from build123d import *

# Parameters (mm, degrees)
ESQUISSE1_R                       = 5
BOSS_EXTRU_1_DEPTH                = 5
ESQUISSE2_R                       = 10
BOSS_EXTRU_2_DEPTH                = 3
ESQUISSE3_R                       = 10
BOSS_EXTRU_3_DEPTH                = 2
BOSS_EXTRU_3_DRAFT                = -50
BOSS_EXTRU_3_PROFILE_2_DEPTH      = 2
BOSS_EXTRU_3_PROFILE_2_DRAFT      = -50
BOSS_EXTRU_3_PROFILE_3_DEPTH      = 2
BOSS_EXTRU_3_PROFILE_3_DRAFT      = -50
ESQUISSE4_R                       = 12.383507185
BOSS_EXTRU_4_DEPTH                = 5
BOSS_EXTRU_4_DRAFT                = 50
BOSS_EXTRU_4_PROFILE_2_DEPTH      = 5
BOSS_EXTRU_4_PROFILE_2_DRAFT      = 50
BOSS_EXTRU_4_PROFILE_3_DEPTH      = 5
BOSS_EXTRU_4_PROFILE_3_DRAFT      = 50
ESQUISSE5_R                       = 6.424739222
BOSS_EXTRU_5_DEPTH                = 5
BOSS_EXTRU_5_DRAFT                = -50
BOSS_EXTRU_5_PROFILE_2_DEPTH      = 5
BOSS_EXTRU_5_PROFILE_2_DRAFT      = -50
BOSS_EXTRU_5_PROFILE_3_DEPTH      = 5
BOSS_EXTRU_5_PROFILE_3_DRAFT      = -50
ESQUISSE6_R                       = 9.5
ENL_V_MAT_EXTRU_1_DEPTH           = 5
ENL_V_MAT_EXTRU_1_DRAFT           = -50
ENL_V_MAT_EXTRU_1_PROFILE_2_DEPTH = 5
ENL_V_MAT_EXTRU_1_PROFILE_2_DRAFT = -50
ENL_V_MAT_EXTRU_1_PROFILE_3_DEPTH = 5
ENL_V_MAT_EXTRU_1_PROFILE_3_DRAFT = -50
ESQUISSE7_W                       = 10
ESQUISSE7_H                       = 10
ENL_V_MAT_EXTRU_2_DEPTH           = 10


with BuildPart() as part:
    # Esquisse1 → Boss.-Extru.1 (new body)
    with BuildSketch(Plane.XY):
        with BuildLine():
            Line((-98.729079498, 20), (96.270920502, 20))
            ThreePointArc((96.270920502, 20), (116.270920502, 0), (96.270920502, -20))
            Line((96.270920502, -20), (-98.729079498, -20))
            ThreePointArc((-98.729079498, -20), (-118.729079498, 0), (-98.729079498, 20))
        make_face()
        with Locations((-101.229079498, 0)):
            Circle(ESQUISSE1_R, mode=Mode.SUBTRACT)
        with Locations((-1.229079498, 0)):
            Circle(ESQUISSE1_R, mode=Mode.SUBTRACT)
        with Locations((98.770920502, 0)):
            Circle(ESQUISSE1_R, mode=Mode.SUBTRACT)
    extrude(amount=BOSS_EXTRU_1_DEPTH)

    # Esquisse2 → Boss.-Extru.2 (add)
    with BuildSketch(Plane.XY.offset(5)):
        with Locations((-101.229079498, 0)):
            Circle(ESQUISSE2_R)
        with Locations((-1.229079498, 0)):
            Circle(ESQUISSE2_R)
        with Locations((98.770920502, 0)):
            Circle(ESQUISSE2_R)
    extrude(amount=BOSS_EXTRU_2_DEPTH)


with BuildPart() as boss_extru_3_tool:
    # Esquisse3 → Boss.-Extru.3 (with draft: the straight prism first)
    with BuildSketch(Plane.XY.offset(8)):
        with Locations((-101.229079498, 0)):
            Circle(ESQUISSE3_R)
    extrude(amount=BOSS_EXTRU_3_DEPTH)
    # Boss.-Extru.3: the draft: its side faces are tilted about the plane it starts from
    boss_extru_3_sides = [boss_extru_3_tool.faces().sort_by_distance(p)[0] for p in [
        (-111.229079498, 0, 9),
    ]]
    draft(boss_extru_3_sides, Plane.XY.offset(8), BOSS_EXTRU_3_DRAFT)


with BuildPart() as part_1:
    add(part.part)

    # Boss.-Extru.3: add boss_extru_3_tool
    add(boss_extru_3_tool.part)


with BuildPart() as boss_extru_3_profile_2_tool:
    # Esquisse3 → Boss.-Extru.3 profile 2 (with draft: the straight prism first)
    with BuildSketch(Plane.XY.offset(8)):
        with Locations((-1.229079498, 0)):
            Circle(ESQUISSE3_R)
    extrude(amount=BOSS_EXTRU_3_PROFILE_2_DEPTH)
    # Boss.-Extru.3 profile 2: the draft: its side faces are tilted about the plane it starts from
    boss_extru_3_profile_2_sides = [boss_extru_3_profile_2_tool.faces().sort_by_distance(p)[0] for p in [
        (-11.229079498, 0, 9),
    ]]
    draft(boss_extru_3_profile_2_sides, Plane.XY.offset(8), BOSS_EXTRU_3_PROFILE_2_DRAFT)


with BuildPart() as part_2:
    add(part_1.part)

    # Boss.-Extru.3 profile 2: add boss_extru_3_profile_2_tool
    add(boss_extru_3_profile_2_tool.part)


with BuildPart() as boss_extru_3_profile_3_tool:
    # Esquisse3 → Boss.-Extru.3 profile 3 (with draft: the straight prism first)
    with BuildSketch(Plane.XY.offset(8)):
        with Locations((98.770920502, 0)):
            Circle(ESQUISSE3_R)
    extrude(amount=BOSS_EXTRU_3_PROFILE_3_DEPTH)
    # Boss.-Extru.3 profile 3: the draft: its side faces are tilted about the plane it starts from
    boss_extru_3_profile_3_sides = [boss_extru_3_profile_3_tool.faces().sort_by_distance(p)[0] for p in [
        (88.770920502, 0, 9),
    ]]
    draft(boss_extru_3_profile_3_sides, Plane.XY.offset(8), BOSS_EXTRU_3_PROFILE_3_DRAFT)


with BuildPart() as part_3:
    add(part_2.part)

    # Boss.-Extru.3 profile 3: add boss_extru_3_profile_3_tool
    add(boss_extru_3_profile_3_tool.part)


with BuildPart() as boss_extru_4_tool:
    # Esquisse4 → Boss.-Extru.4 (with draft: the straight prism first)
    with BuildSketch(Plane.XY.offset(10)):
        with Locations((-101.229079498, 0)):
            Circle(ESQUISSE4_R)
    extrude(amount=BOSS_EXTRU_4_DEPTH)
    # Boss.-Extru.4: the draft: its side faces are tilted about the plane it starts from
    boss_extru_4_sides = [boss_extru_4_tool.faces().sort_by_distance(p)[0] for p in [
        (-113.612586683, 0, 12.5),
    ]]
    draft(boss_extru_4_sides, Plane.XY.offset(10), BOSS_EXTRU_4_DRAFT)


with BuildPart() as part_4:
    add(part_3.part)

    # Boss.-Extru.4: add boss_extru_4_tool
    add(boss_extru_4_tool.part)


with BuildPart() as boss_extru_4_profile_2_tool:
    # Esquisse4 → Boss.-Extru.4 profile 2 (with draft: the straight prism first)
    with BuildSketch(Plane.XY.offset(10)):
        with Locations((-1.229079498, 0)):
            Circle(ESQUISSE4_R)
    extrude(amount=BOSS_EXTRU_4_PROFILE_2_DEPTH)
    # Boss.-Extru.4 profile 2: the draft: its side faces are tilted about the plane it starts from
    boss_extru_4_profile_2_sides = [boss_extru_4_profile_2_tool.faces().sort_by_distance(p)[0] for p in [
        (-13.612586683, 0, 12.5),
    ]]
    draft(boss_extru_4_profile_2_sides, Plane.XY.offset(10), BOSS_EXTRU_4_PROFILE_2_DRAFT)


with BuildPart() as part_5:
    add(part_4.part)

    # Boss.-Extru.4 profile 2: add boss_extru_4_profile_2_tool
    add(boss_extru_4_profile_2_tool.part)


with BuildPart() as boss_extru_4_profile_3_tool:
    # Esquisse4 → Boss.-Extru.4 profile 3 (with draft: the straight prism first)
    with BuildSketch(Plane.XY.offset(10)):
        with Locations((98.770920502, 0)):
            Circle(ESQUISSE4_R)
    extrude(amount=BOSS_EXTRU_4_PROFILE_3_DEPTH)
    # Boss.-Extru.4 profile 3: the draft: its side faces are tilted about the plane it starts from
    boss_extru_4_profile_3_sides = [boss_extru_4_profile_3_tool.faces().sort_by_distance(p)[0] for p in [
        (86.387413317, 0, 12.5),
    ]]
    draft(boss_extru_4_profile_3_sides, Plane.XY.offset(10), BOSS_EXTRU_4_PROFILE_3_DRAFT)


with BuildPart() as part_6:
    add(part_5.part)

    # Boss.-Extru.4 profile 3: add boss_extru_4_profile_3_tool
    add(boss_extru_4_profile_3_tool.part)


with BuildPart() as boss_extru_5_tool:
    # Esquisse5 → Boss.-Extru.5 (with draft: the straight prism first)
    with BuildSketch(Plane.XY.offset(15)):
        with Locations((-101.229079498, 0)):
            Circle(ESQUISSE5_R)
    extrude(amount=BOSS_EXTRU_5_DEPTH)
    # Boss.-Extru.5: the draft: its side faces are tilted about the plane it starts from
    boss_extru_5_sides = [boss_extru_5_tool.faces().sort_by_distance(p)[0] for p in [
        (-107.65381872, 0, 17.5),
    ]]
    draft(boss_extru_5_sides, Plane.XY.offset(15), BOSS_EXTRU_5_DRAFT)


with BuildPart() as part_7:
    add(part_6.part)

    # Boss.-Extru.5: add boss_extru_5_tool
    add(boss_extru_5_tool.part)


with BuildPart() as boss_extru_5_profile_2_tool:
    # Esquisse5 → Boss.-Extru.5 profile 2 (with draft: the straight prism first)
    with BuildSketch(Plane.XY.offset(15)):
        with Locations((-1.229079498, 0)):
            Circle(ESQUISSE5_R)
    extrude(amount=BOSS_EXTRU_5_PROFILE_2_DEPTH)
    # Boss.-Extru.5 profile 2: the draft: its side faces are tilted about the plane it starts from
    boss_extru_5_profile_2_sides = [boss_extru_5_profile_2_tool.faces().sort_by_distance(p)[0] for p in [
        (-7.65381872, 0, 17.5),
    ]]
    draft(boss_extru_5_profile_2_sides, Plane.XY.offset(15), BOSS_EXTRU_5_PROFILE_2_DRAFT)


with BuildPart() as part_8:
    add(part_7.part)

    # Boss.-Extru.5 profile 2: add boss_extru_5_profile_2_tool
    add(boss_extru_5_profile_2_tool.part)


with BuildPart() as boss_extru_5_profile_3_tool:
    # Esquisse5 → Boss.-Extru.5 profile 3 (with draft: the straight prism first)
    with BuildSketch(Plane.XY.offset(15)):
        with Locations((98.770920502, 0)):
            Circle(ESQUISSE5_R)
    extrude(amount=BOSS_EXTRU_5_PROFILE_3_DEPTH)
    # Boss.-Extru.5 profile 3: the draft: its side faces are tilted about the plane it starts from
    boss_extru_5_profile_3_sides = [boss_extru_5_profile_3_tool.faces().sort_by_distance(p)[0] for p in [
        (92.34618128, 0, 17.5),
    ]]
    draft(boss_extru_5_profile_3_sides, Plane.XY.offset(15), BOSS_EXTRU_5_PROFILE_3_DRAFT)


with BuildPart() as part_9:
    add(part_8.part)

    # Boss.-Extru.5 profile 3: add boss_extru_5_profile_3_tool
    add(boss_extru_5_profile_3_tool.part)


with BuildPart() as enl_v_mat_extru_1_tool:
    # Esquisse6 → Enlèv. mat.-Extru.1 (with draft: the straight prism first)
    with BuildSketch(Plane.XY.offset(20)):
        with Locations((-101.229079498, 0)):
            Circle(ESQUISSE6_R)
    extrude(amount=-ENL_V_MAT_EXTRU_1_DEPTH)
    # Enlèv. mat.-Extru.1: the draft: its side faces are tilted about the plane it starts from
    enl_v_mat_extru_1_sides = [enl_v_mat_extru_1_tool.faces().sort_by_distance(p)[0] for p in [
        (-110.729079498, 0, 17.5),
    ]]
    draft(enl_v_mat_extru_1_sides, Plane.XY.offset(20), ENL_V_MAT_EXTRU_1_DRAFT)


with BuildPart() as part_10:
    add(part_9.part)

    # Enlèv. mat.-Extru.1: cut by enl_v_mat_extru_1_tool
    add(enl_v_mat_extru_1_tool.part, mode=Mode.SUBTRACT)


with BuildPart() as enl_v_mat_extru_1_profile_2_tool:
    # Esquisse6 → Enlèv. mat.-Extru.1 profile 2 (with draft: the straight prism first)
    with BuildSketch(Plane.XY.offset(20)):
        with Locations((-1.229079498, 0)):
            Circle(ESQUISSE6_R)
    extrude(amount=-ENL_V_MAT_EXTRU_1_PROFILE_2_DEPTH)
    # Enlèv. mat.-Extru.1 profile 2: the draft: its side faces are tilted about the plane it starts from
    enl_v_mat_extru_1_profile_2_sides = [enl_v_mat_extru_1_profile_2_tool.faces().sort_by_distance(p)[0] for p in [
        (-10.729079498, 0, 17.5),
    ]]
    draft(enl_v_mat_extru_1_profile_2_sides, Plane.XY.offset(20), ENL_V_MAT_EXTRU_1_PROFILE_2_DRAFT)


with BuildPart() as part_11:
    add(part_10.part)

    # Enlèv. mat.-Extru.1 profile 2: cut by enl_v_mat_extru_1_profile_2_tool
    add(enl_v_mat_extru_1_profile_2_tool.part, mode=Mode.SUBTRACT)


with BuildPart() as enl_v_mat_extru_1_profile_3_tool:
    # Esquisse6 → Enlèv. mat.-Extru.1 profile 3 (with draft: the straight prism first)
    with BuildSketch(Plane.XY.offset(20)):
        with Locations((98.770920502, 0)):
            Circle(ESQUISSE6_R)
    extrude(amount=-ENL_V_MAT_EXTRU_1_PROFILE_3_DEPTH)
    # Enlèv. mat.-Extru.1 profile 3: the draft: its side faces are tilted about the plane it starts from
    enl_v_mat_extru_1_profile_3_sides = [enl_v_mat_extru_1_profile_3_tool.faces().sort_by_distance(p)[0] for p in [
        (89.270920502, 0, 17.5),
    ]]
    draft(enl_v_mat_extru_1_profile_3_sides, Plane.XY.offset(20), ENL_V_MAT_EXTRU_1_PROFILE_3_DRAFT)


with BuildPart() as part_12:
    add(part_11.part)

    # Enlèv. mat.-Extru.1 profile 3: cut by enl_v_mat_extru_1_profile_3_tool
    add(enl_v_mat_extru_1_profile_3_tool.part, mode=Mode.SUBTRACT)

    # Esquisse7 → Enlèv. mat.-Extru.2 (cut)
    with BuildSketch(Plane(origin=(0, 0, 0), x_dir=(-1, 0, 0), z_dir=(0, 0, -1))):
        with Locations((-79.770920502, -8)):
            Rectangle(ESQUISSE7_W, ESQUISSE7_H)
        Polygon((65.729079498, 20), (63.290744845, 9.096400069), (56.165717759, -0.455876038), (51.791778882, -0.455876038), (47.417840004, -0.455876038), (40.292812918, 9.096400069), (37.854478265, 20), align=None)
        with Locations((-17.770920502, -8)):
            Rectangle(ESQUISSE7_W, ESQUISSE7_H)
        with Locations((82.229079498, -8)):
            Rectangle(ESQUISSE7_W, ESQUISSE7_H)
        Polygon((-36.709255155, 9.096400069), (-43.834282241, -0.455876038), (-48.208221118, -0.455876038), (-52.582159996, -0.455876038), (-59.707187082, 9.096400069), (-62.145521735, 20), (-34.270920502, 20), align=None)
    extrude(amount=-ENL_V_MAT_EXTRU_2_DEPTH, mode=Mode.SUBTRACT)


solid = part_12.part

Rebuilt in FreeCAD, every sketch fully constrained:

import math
import FreeCAD as App
import Part
import Sketcher

V = App.Vector


def faces_at(feature, points):
    """Names of the faces that lie closest to the given points."""
    faces = feature.Shape.Faces
    near = lambda p: min(range(len(faces)), key=lambda i: faces[i].distToShape(Part.Vertex(*p))[0])
    return sorted({f"Face{near(p) + 1}" for p in points})

doc = App.newDocument("Part")
params = doc.addObject("Spreadsheet::Sheet", "Params")
for row, (alias, value) in enumerate([
    ("sketch1_diameter", "10 mm"),
    ("sketch1_radius", "20 mm"),
    ("sketch1_width", "195 mm"),
    ("pad1_length", "5 mm"),
    ("sketch2_diameter", "20 mm"),
    ("pad2_length", "3 mm"),
    ("sketch3_diameter", "20 mm"),
    ("pad3_length", "2 mm"),
    ("draft_angle", "50 deg"),
    ("sketch4_diameter", "20 mm"),
    ("pad4_length", "2 mm"),
    ("draft2_angle", "50 deg"),
    ("sketch5_diameter", "20 mm"),
    ("pad5_length", "2 mm"),
    ("draft3_angle", "50 deg"),
    ("pad6_length", "5 mm"),
    ("draft4_angle", "50 deg"),
    ("pad7_length", "5 mm"),
    ("draft5_angle", "50 deg"),
    ("pad8_length", "5 mm"),
    ("draft6_angle", "50 deg"),
    ("pad9_length", "5 mm"),
    ("draft7_angle", "50 deg"),
    ("pad10_length", "5 mm"),
    ("draft8_angle", "50 deg"),
    ("pad11_length", "5 mm"),
    ("draft9_angle", "50 deg"),
    ("sketch12_diameter", "19 mm"),
    ("pad12_length", "5 mm"),
    ("draft10_angle", "50 deg"),
    ("sketch13_diameter", "19 mm"),
    ("pad13_length", "5 mm"),
    ("draft11_angle", "50 deg"),
    ("sketch14_diameter", "19 mm"),
    ("pad14_length", "5 mm"),
    ("draft12_angle", "50 deg"),
    ("sketch15_width", "10 mm"),
    ("pocket1_length", "10 mm"),
], start=1):
    params.set(f"A{row}", alias)
    params.set(f"B{row}", "=" + value)
    params.setAlias(f"B{row}", alias)

body = doc.addObject("PartDesign::Body", "Body")

# Sketch on XY plane
sketch1 = body.newObject("Sketcher::SketchObject", "Sketch")
sketch1.AttachmentSupport = (doc.getObject("XY_Plane"), [""])
sketch1.MapMode = "FlatFace"
sketch1.addGeometry(Part.LineSegment(V(96, 20, 0), V(-99, 20, 0)), False)
sketch1.addGeometry(Part.ArcOfCircle(Part.Circle(V(-99, 0, 0), V(0, 0, 1), 20), math.radians(90), math.radians(270)), False)
sketch1.addGeometry(Part.LineSegment(V(-99, -20, 0), V(96, -20, 0)), False)
sketch1.addGeometry(Part.ArcOfCircle(Part.Circle(V(96, 0, 0), V(0, 0, 1), 20), math.radians(-90), math.radians(90)), False)
sketch1.addGeometry(Part.Circle(V(99, 0, 0), V(0, 0, 1), 5), False)
sketch1.addGeometry(Part.Circle(V(-1, 0, 0), V(0, 0, 1), 5), False)
sketch1.addGeometry(Part.Circle(V(-101, 0, 0), V(0, 0, 1), 5), False)
sketch1.addConstraint(Sketcher.Constraint("Tangent", 0, 2, 1, 1))
sketch1.addConstraint(Sketcher.Constraint("Tangent", 1, 2, 2, 1))
sketch1.addConstraint(Sketcher.Constraint("Tangent", 2, 2, 3, 1))
sketch1.addConstraint(Sketcher.Constraint("Tangent", 3, 2, 0, 1))
sketch1.addConstraint(Sketcher.Constraint("Horizontal", 0))
sketch1.addConstraint(Sketcher.Constraint("Horizontal", 2))
sketch1.addConstraint(Sketcher.Constraint("Equal", 4, 5))
sketch1.addConstraint(Sketcher.Constraint("Equal", 5, 6))
sketch1.addConstraint(Sketcher.Constraint("PointOnObject", 1, 3, -1))
sketch1.addConstraint(Sketcher.Constraint("PointOnObject", 4, 3, -1))
sketch1.addConstraint(Sketcher.Constraint("PointOnObject", 5, 3, -1))
sketch1.addConstraint(Sketcher.Constraint("PointOnObject", 6, 3, -1))
sketch1.addConstraint(Sketcher.Constraint("Diameter", 4, 10.0))
sketch1.addConstraint(Sketcher.Constraint("Radius", 1, 20.0))
sketch1.addConstraint(Sketcher.Constraint("DistanceX", 0, 2, 0, 1, 195.0))
sketch1.addConstraint(Sketcher.Constraint("DistanceX", 5, 3, 4, 3, 100.0))
sketch1.addConstraint(Sketcher.Constraint("DistanceX", 6, 3, 5, 3, 100.0))
sketch1.addConstraint(Sketcher.Constraint("DistanceX", 3, 3, 4, 3, 2.5))
sketch1.addConstraint(Sketcher.Constraint("DistanceX", 1, 3, -1, 1, 98.729079))
sketch1.setExpression("Constraints[12]", "Params.sketch1_diameter")
sketch1.setExpression("Constraints[13]", "Params.sketch1_radius")
sketch1.setExpression("Constraints[14]", "Params.sketch1_width")
pad1 = body.newObject("PartDesign::Pad", "Pad")
pad1.Profile = sketch1
pad1.setExpression("Length", "Params.pad1_length")

# Sketch on XY plane
sketch2 = body.newObject("Sketcher::SketchObject", "Sketch001")
sketch2.AttachmentSupport = (doc.getObject("XY_Plane"), [""])
sketch2.MapMode = "FlatFace"
sketch2.AttachmentOffset = App.Placement(V(0, 0, 5), App.Rotation())
sketch2.addGeometry(Part.Circle(V(-101, 0, 0), V(0, 0, 1), 10), False)
sketch2.addGeometry(Part.Circle(V(-1, 0, 0), V(0, 0, 1), 10), False)
sketch2.addGeometry(Part.Circle(V(99, 0, 0), V(0, 0, 1), 10), False)
sketch2.addConstraint(Sketcher.Constraint("Equal", 0, 1))
sketch2.addConstraint(Sketcher.Constraint("Equal", 1, 2))
sketch2.addConstraint(Sketcher.Constraint("PointOnObject", 0, 3, -1))
sketch2.addConstraint(Sketcher.Constraint("PointOnObject", 1, 3, -1))
sketch2.addConstraint(Sketcher.Constraint("PointOnObject", 2, 3, -1))
sketch2.addConstraint(Sketcher.Constraint("Diameter", 0, 20.0))
sketch2.addConstraint(Sketcher.Constraint("DistanceX", 0, 3, 1, 3, 100.0))
sketch2.addConstraint(Sketcher.Constraint("DistanceX", 1, 3, 2, 3, 100.0))
sketch2.addConstraint(Sketcher.Constraint("DistanceX", 0, 3, -1, 1, 101.229079))
sketch2.setExpression("Constraints[5]", "Params.sketch2_diameter")
pad2 = body.newObject("PartDesign::Pad", "Pad001")
pad2.Profile = sketch2
pad2.setExpression("Length", "Params.pad2_length")
body2 = doc.addObject("PartDesign::Body", "Body001")

# Sketch on XY plane
sketch3 = body2.newObject("Sketcher::SketchObject", "Sketch002")
sketch3.AttachmentSupport = (doc.getObject("XY_Plane001"), [""])
sketch3.MapMode = "FlatFace"
sketch3.AttachmentOffset = App.Placement(V(0, 0, 8), App.Rotation())
sketch3.addGeometry(Part.Circle(V(-101, 0, 0), V(0, 0, 1), 10), False)
sketch3.addConstraint(Sketcher.Constraint("PointOnObject", 0, 3, -1))
sketch3.addConstraint(Sketcher.Constraint("Diameter", 0, 20.0))
sketch3.addConstraint(Sketcher.Constraint("DistanceX", 0, 3, -1, 1, 101.229079))
sketch3.setExpression("Constraints[1]", "Params.sketch3_diameter")
pad3 = body2.newObject("PartDesign::Pad", "Pad002")
pad3.Profile = sketch3
pad3.setExpression("Length", "Params.pad3_length")
doc.recompute()

datumplane = body2.newObject("PartDesign::Plane", "DatumPlane")
datumplane.AttachmentSupport = (doc.getObject("XY_Plane001"), [""])
datumplane.MapMode = "FlatFace"
datumplane.AttachmentOffset = App.Placement(V(0, 0, 8), App.Rotation())
draft = body2.newObject("PartDesign::Draft", "Draft")
draft.Base = (pad3, faces_at(pad3, [(-111.229, 0, 9)]))
draft.NeutralPlane = (datumplane, [""])
draft.setExpression("Angle", "Params.draft_angle")
draft.Reversed = True
doc.recompute()

boolean = body.newObject("PartDesign::Boolean", "Boolean")
boolean.Type = "Fuse"
boolean.addObjects([body2])
body3 = doc.addObject("PartDesign::Body", "Body002")

# Sketch on XY plane
sketch4 = body3.newObject("Sketcher::SketchObject", "Sketch003")
sketch4.AttachmentSupport = (doc.getObject("XY_Plane002"), [""])
sketch4.MapMode = "FlatFace"
sketch4.AttachmentOffset = App.Placement(V(0, 0, 8), App.Rotation())
sketch4.addGeometry(Part.Circle(V(-1, 0, 0), V(0, 0, 1), 10), False)
sketch4.addConstraint(Sketcher.Constraint("PointOnObject", 0, 3, -1))
sketch4.addConstraint(Sketcher.Constraint("Diameter", 0, 20.0))
sketch4.addConstraint(Sketcher.Constraint("DistanceX", 0, 3, -1, 1, 1.229079))
sketch4.setExpression("Constraints[1]", "Params.sketch4_diameter")
pad4 = body3.newObject("PartDesign::Pad", "Pad003")
pad4.Profile = sketch4
pad4.setExpression("Length", "Params.pad4_length")
doc.recompute()

datumplane2 = body3.newObject("PartDesign::Plane", "DatumPlane001")
datumplane2.AttachmentSupport = (doc.getObject("XY_Plane002"), [""])
datumplane2.MapMode = "FlatFace"
datumplane2.AttachmentOffset = App.Placement(V(0, 0, 8), App.Rotation())
draft2 = body3.newObject("PartDesign::Draft", "Draft001")
draft2.Base = (pad4, faces_at(pad4, [(-11.229, 0, 9)]))
draft2.NeutralPlane = (datumplane2, [""])
draft2.setExpression("Angle", "Params.draft2_angle")
draft2.Reversed = True
doc.recompute()

boolean2 = body.newObject("PartDesign::Boolean", "Boolean001")
boolean2.Type = "Fuse"
boolean2.addObjects([body3])
body4 = doc.addObject("PartDesign::Body", "Body003")

# Sketch on XY plane
sketch5 = body4.newObject("Sketcher::SketchObject", "Sketch004")
sketch5.AttachmentSupport = (doc.getObject("XY_Plane003"), [""])
sketch5.MapMode = "FlatFace"
sketch5.AttachmentOffset = App.Placement(V(0, 0, 8), App.Rotation())
sketch5.addGeometry(Part.Circle(V(99, 0, 0), V(0, 0, 1), 10), False)
sketch5.addConstraint(Sketcher.Constraint("PointOnObject", 0, 3, -1))
sketch5.addConstraint(Sketcher.Constraint("Diameter", 0, 20.0))
sketch5.addConstraint(Sketcher.Constraint("DistanceX", -1, 1, 0, 3, 98.770921))
sketch5.setExpression("Constraints[1]", "Params.sketch5_diameter")
pad5 = body4.newObject("PartDesign::Pad", "Pad004")
pad5.Profile = sketch5
pad5.setExpression("Length", "Params.pad5_length")
doc.recompute()

datumplane3 = body4.newObject("PartDesign::Plane", "DatumPlane002")
datumplane3.AttachmentSupport = (doc.getObject("XY_Plane003"), [""])
datumplane3.MapMode = "FlatFace"
datumplane3.AttachmentOffset = App.Placement(V(0, 0, 8), App.Rotation())
draft3 = body4.newObject("PartDesign::Draft", "Draft002")
draft3.Base = (pad5, faces_at(pad5, [(88.771, 0, 9)]))
draft3.NeutralPlane = (datumplane3, [""])
draft3.setExpression("Angle", "Params.draft3_angle")
draft3.Reversed = True
doc.recompute()

boolean3 = body.newObject("PartDesign::Boolean", "Boolean002")
boolean3.Type = "Fuse"
boolean3.addObjects([body4])
body5 = doc.addObject("PartDesign::Body", "Body004")

# Sketch on XY plane
sketch6 = body5.newObject("Sketcher::SketchObject", "Sketch005")
sketch6.AttachmentSupport = (doc.getObject("XY_Plane004"), [""])
sketch6.MapMode = "FlatFace"
sketch6.AttachmentOffset = App.Placement(V(0, 0, 10), App.Rotation())
sketch6.addGeometry(Part.Circle(V(-101, 0, 0), V(0, 0, 1), 12), False)
sketch6.addConstraint(Sketcher.Constraint("PointOnObject", 0, 3, -1))
sketch6.addConstraint(Sketcher.Constraint("Diameter", 0, 24.767014))
sketch6.addConstraint(Sketcher.Constraint("DistanceX", 0, 3, -1, 1, 101.229079))
pad6 = body5.newObject("PartDesign::Pad", "Pad005")
pad6.Profile = sketch6
pad6.setExpression("Length", "Params.pad6_length")
doc.recompute()

datumplane4 = body5.newObject("PartDesign::Plane", "DatumPlane003")
datumplane4.AttachmentSupport = (doc.getObject("XY_Plane004"), [""])
datumplane4.MapMode = "FlatFace"
datumplane4.AttachmentOffset = App.Placement(V(0, 0, 10), App.Rotation())
draft4 = body5.newObject("PartDesign::Draft", "Draft003")
draft4.Base = (pad6, faces_at(pad6, [(-113.613, 0, 12.5)]))
draft4.NeutralPlane = (datumplane4, [""])
draft4.setExpression("Angle", "Params.draft4_angle")
draft4.Reversed = False
doc.recompute()

boolean4 = body.newObject("PartDesign::Boolean", "Boolean003")
boolean4.Type = "Fuse"
boolean4.addObjects([body5])
body6 = doc.addObject("PartDesign::Body", "Body005")

# Sketch on XY plane
sketch7 = body6.newObject("Sketcher::SketchObject", "Sketch006")
sketch7.AttachmentSupport = (doc.getObject("XY_Plane005"), [""])
sketch7.MapMode = "FlatFace"
sketch7.AttachmentOffset = App.Placement(V(0, 0, 10), App.Rotation())
sketch7.addGeometry(Part.Circle(V(-1, 0, 0), V(0, 0, 1), 12), False)
sketch7.addConstraint(Sketcher.Constraint("PointOnObject", 0, 3, -1))
sketch7.addConstraint(Sketcher.Constraint("Diameter", 0, 24.767014))
sketch7.addConstraint(Sketcher.Constraint("DistanceX", 0, 3, -1, 1, 1.229079))
pad7 = body6.newObject("PartDesign::Pad", "Pad006")
pad7.Profile = sketch7
pad7.setExpression("Length", "Params.pad7_length")
doc.recompute()

datumplane5 = body6.newObject("PartDesign::Plane", "DatumPlane004")
datumplane5.AttachmentSupport = (doc.getObject("XY_Plane005"), [""])
datumplane5.MapMode = "FlatFace"
datumplane5.AttachmentOffset = App.Placement(V(0, 0, 10), App.Rotation())
draft5 = body6.newObject("PartDesign::Draft", "Draft004")
draft5.Base = (pad7, faces_at(pad7, [(-13.613, 0, 12.5)]))
draft5.NeutralPlane = (datumplane5, [""])
draft5.setExpression("Angle", "Params.draft5_angle")
draft5.Reversed = False
doc.recompute()

boolean5 = body.newObject("PartDesign::Boolean", "Boolean004")
boolean5.Type = "Fuse"
boolean5.addObjects([body6])
body7 = doc.addObject("PartDesign::Body", "Body006")

# Sketch on XY plane
sketch8 = body7.newObject("Sketcher::SketchObject", "Sketch007")
sketch8.AttachmentSupport = (doc.getObject("XY_Plane006"), [""])
sketch8.MapMode = "FlatFace"
sketch8.AttachmentOffset = App.Placement(V(0, 0, 10), App.Rotation())
sketch8.addGeometry(Part.Circle(V(99, 0, 0), V(0, 0, 1), 12), False)
sketch8.addConstraint(Sketcher.Constraint("PointOnObject", 0, 3, -1))
sketch8.addConstraint(Sketcher.Constraint("Diameter", 0, 24.767014))
sketch8.addConstraint(Sketcher.Constraint("DistanceX", -1, 1, 0, 3, 98.770921))
pad8 = body7.newObject("PartDesign::Pad", "Pad007")
pad8.Profile = sketch8
pad8.setExpression("Length", "Params.pad8_length")
doc.recompute()

datumplane6 = body7.newObject("PartDesign::Plane", "DatumPlane005")
datumplane6.AttachmentSupport = (doc.getObject("XY_Plane006"), [""])
datumplane6.MapMode = "FlatFace"
datumplane6.AttachmentOffset = App.Placement(V(0, 0, 10), App.Rotation())
draft6 = body7.newObject("PartDesign::Draft", "Draft005")
draft6.Base = (pad8, faces_at(pad8, [(86.387, 0, 12.5)]))
draft6.NeutralPlane = (datumplane6, [""])
draft6.setExpression("Angle", "Params.draft6_angle")
draft6.Reversed = False
doc.recompute()

boolean6 = body.newObject("PartDesign::Boolean", "Boolean005")
boolean6.Type = "Fuse"
boolean6.addObjects([body7])
body8 = doc.addObject("PartDesign::Body", "Body007")

# Sketch on XY plane
sketch9 = body8.newObject("Sketcher::SketchObject", "Sketch008")
sketch9.AttachmentSupport = (doc.getObject("XY_Plane007"), [""])
sketch9.MapMode = "FlatFace"
sketch9.AttachmentOffset = App.Placement(V(0, 0, 15), App.Rotation())
sketch9.addGeometry(Part.Circle(V(-101, 0, 0), V(0, 0, 1), 6), False)
sketch9.addConstraint(Sketcher.Constraint("PointOnObject", 0, 3, -1))
sketch9.addConstraint(Sketcher.Constraint("Diameter", 0, 12.849478))
sketch9.addConstraint(Sketcher.Constraint("DistanceX", 0, 3, -1, 1, 101.229079))
pad9 = body8.newObject("PartDesign::Pad", "Pad008")
pad9.Profile = sketch9
pad9.setExpression("Length", "Params.pad9_length")
doc.recompute()

datumplane7 = body8.newObject("PartDesign::Plane", "DatumPlane006")
datumplane7.AttachmentSupport = (doc.getObject("XY_Plane007"), [""])
datumplane7.MapMode = "FlatFace"
datumplane7.AttachmentOffset = App.Placement(V(0, 0, 15), App.Rotation())
draft7 = body8.newObject("PartDesign::Draft", "Draft006")
draft7.Base = (pad9, faces_at(pad9, [(-107.654, 0, 17.5)]))
draft7.NeutralPlane = (datumplane7, [""])
draft7.setExpression("Angle", "Params.draft7_angle")
draft7.Reversed = True
doc.recompute()

boolean7 = body.newObject("PartDesign::Boolean", "Boolean006")
boolean7.Type = "Fuse"
boolean7.addObjects([body8])
body9 = doc.addObject("PartDesign::Body", "Body008")

# Sketch on XY plane
sketch10 = body9.newObject("Sketcher::SketchObject", "Sketch009")
sketch10.AttachmentSupport = (doc.getObject("XY_Plane008"), [""])
sketch10.MapMode = "FlatFace"
sketch10.AttachmentOffset = App.Placement(V(0, 0, 15), App.Rotation())
sketch10.addGeometry(Part.Circle(V(-1, 0, 0), V(0, 0, 1), 6), False)
sketch10.addConstraint(Sketcher.Constraint("PointOnObject", 0, 3, -1))
sketch10.addConstraint(Sketcher.Constraint("Diameter", 0, 12.849478))
sketch10.addConstraint(Sketcher.Constraint("DistanceX", 0, 3, -1, 1, 1.229079))
pad10 = body9.newObject("PartDesign::Pad", "Pad009")
pad10.Profile = sketch10
pad10.setExpression("Length", "Params.pad10_length")
doc.recompute()

datumplane8 = body9.newObject("PartDesign::Plane", "DatumPlane007")
datumplane8.AttachmentSupport = (doc.getObject("XY_Plane008"), [""])
datumplane8.MapMode = "FlatFace"
datumplane8.AttachmentOffset = App.Placement(V(0, 0, 15), App.Rotation())
draft8 = body9.newObject("PartDesign::Draft", "Draft007")
draft8.Base = (pad10, faces_at(pad10, [(-7.654, 0, 17.5)]))
draft8.NeutralPlane = (datumplane8, [""])
draft8.setExpression("Angle", "Params.draft8_angle")
draft8.Reversed = True
doc.recompute()

boolean8 = body.newObject("PartDesign::Boolean", "Boolean007")
boolean8.Type = "Fuse"
boolean8.addObjects([body9])
body10 = doc.addObject("PartDesign::Body", "Body009")

# Sketch on XY plane
sketch11 = body10.newObject("Sketcher::SketchObject", "Sketch010")
sketch11.AttachmentSupport = (doc.getObject("XY_Plane009"), [""])
sketch11.MapMode = "FlatFace"
sketch11.AttachmentOffset = App.Placement(V(0, 0, 15), App.Rotation())
sketch11.addGeometry(Part.Circle(V(99, 0, 0), V(0, 0, 1), 6), False)
sketch11.addConstraint(Sketcher.Constraint("PointOnObject", 0, 3, -1))
sketch11.addConstraint(Sketcher.Constraint("Diameter", 0, 12.849478))
sketch11.addConstraint(Sketcher.Constraint("DistanceX", -1, 1, 0, 3, 98.770921))
pad11 = body10.newObject("PartDesign::Pad", "Pad010")
pad11.Profile = sketch11
pad11.setExpression("Length", "Params.pad11_length")
doc.recompute()

datumplane9 = body10.newObject("PartDesign::Plane", "DatumPlane008")
datumplane9.AttachmentSupport = (doc.getObject("XY_Plane009"), [""])
datumplane9.MapMode = "FlatFace"
datumplane9.AttachmentOffset = App.Placement(V(0, 0, 15), App.Rotation())
draft9 = body10.newObject("PartDesign::Draft", "Draft008")
draft9.Base = (pad11, faces_at(pad11, [(92.346, 0, 17.5)]))
draft9.NeutralPlane = (datumplane9, [""])
draft9.setExpression("Angle", "Params.draft9_angle")
draft9.Reversed = True
doc.recompute()

boolean9 = body.newObject("PartDesign::Boolean", "Boolean008")
boolean9.Type = "Fuse"
boolean9.addObjects([body10])
body11 = doc.addObject("PartDesign::Body", "Body010")

# Sketch on XY plane
sketch12 = body11.newObject("Sketcher::SketchObject", "Sketch011")
sketch12.AttachmentSupport = (doc.getObject("XY_Plane010"), [""])
sketch12.MapMode = "FlatFace"
sketch12.AttachmentOffset = App.Placement(V(0, 0, 20), App.Rotation())
sketch12.addGeometry(Part.Circle(V(-101, 0, 0), V(0, 0, 1), 10), False)
sketch12.addConstraint(Sketcher.Constraint("PointOnObject", 0, 3, -1))
sketch12.addConstraint(Sketcher.Constraint("Diameter", 0, 19.0))
sketch12.addConstraint(Sketcher.Constraint("DistanceX", 0, 3, -1, 1, 101.229079))
sketch12.setExpression("Constraints[1]", "Params.sketch12_diameter")
pad12 = body11.newObject("PartDesign::Pad", "Pad011")
pad12.Profile = sketch12
pad12.setExpression("Length", "Params.pad12_length")
pad12.Reversed = True
doc.recompute()

datumplane10 = body11.newObject("PartDesign::Plane", "DatumPlane009")
datumplane10.AttachmentSupport = (doc.getObject("XY_Plane010"), [""])
datumplane10.MapMode = "FlatFace"
datumplane10.AttachmentOffset = App.Placement(V(0, 0, 20), App.Rotation())
draft10 = body11.newObject("PartDesign::Draft", "Draft009")
draft10.Base = (pad12, faces_at(pad12, [(-110.729, 0, 17.5)]))
draft10.NeutralPlane = (datumplane10, [""])
draft10.setExpression("Angle", "Params.draft10_angle")
draft10.Reversed = True
doc.recompute()

boolean10 = body.newObject("PartDesign::Boolean", "Boolean009")
boolean10.Type = "Cut"
boolean10.addObjects([body11])
body12 = doc.addObject("PartDesign::Body", "Body011")

# Sketch on XY plane
sketch13 = body12.newObject("Sketcher::SketchObject", "Sketch012")
sketch13.AttachmentSupport = (doc.getObject("XY_Plane011"), [""])
sketch13.MapMode = "FlatFace"
sketch13.AttachmentOffset = App.Placement(V(0, 0, 20), App.Rotation())
sketch13.addGeometry(Part.Circle(V(-1, 0, 0), V(0, 0, 1), 10), False)
sketch13.addConstraint(Sketcher.Constraint("PointOnObject", 0, 3, -1))
sketch13.addConstraint(Sketcher.Constraint("Diameter", 0, 19.0))
sketch13.addConstraint(Sketcher.Constraint("DistanceX", 0, 3, -1, 1, 1.229079))
sketch13.setExpression("Constraints[1]", "Params.sketch13_diameter")
pad13 = body12.newObject("PartDesign::Pad", "Pad012")
pad13.Profile = sketch13
pad13.setExpression("Length", "Params.pad13_length")
pad13.Reversed = True
doc.recompute()

datumplane11 = body12.newObject("PartDesign::Plane", "DatumPlane010")
datumplane11.AttachmentSupport = (doc.getObject("XY_Plane011"), [""])
datumplane11.MapMode = "FlatFace"
datumplane11.AttachmentOffset = App.Placement(V(0, 0, 20), App.Rotation())
draft11 = body12.newObject("PartDesign::Draft", "Draft010")
draft11.Base = (pad13, faces_at(pad13, [(-10.729, 0, 17.5)]))
draft11.NeutralPlane = (datumplane11, [""])
draft11.setExpression("Angle", "Params.draft11_angle")
draft11.Reversed = True
doc.recompute()

boolean11 = body.newObject("PartDesign::Boolean", "Boolean010")
boolean11.Type = "Cut"
boolean11.addObjects([body12])
body13 = doc.addObject("PartDesign::Body", "Body012")

# Sketch on XY plane
sketch14 = body13.newObject("Sketcher::SketchObject", "Sketch013")
sketch14.AttachmentSupport = (doc.getObject("XY_Plane012"), [""])
sketch14.MapMode = "FlatFace"
sketch14.AttachmentOffset = App.Placement(V(0, 0, 20), App.Rotation())
sketch14.addGeometry(Part.Circle(V(99, 0, 0), V(0, 0, 1), 10), False)
sketch14.addConstraint(Sketcher.Constraint("PointOnObject", 0, 3, -1))
sketch14.addConstraint(Sketcher.Constraint("Diameter", 0, 19.0))
sketch14.addConstraint(Sketcher.Constraint("DistanceX", -1, 1, 0, 3, 98.770921))
sketch14.setExpression("Constraints[1]", "Params.sketch14_diameter")
pad14 = body13.newObject("PartDesign::Pad", "Pad013")
pad14.Profile = sketch14
pad14.setExpression("Length", "Params.pad14_length")
pad14.Reversed = True
doc.recompute()

datumplane12 = body13.newObject("PartDesign::Plane", "DatumPlane011")
datumplane12.AttachmentSupport = (doc.getObject("XY_Plane012"), [""])
datumplane12.MapMode = "FlatFace"
datumplane12.AttachmentOffset = App.Placement(V(0, 0, 20), App.Rotation())
draft12 = body13.newObject("PartDesign::Draft", "Draft011")
draft12.Base = (pad14, faces_at(pad14, [(89.271, 0, 17.5)]))
draft12.NeutralPlane = (datumplane12, [""])
draft12.setExpression("Angle", "Params.draft12_angle")
draft12.Reversed = True
doc.recompute()

boolean12 = body.newObject("PartDesign::Boolean", "Boolean011")
boolean12.Type = "Cut"
boolean12.addObjects([body13])

# Sketch on XY plane
sketch15 = body.newObject("Sketcher::SketchObject", "Sketch014")
sketch15.AttachmentSupport = (doc.getObject("XY_Plane"), [""])
sketch15.MapMode = "FlatFace"
sketch15.addGeometry(Part.LineSegment(V(85, -3, 0), V(85, -13, 0)), False)
sketch15.addGeometry(Part.LineSegment(V(85, -13, 0), V(75, -13, 0)), False)
sketch15.addGeometry(Part.LineSegment(V(75, -13, 0), V(75, -3, 0)), False)
sketch15.addGeometry(Part.LineSegment(V(75, -3, 0), V(85, -3, 0)), False)
sketch15.addGeometry(Part.LineSegment(V(-63, 9, 0), V(-66, 20, 0)), False)
sketch15.addGeometry(Part.LineSegment(V(-66, 20, 0), V(-38, 20, 0)), False)
sketch15.addGeometry(Part.LineSegment(V(-38, 20, 0), V(-40, 9, 0)), False)
sketch15.addGeometry(Part.LineSegment(V(-40, 9, 0), V(-47, 0, 0)), False)
sketch15.addGeometry(Part.LineSegment(V(-47, 0, 0), V(-56, 0, 0)), False)
sketch15.addGeometry(Part.LineSegment(V(-56, 0, 0), V(-63, 9, 0)), False)
sketch15.addGeometry(Part.LineSegment(V(23, -3, 0), V(23, -13, 0)), False)
sketch15.addGeometry(Part.LineSegment(V(23, -13, 0), V(13, -13, 0)), False)
sketch15.addGeometry(Part.LineSegment(V(13, -13, 0), V(13, -3, 0)), False)
sketch15.addGeometry(Part.LineSegment(V(13, -3, 0), V(23, -3, 0)), False)
sketch15.addGeometry(Part.LineSegment(V(-77, -3, 0), V(-77, -13, 0)), False)
sketch15.addGeometry(Part.LineSegment(V(-77, -13, 0), V(-87, -13, 0)), False)
sketch15.addGeometry(Part.LineSegment(V(-87, -13, 0), V(-87, -3, 0)), False)
sketch15.addGeometry(Part.LineSegment(V(-87, -3, 0), V(-77, -3, 0)), False)
sketch15.addGeometry(Part.LineSegment(V(44, 0, 0), V(37, 9, 0)), False)
sketch15.addGeometry(Part.LineSegment(V(37, 9, 0), V(34, 20, 0)), False)
sketch15.addGeometry(Part.LineSegment(V(34, 20, 0), V(62, 20, 0)), False)
sketch15.addGeometry(Part.LineSegment(V(62, 20, 0), V(60, 9, 0)), False)
sketch15.addGeometry(Part.LineSegment(V(60, 9, 0), V(53, 0, 0)), False)
sketch15.addGeometry(Part.LineSegment(V(53, 0, 0), V(44, 0, 0)), False)
sketch15.addConstraint(Sketcher.Constraint("Coincident", 0, 2, 1, 1))
sketch15.addConstraint(Sketcher.Constraint("Coincident", 1, 2, 2, 1))
sketch15.addConstraint(Sketcher.Constraint("Coincident", 2, 2, 3, 1))
sketch15.addConstraint(Sketcher.Constraint("Coincident", 3, 2, 0, 1))
sketch15.addConstraint(Sketcher.Constraint("Coincident", 4, 2, 5, 1))
sketch15.addConstraint(Sketcher.Constraint("Coincident", 5, 2, 6, 1))
sketch15.addConstraint(Sketcher.Constraint("Coincident", 6, 2, 7, 1))
sketch15.addConstraint(Sketcher.Constraint("Coincident", 7, 2, 8, 1))
sketch15.addConstraint(Sketcher.Constraint("Coincident", 8, 2, 9, 1))
sketch15.addConstraint(Sketcher.Constraint("Coincident", 9, 2, 4, 1))
sketch15.addConstraint(Sketcher.Constraint("Coincident", 10, 2, 11, 1))
sketch15.addConstraint(Sketcher.Constraint("Coincident", 11, 2, 12, 1))
sketch15.addConstraint(Sketcher.Constraint("Coincident", 12, 2, 13, 1))
sketch15.addConstraint(Sketcher.Constraint("Coincident", 13, 2, 10, 1))
sketch15.addConstraint(Sketcher.Constraint("Coincident", 14, 2, 15, 1))
sketch15.addConstraint(Sketcher.Constraint("Coincident", 15, 2, 16, 1))
sketch15.addConstraint(Sketcher.Constraint("Coincident", 16, 2, 17, 1))
sketch15.addConstraint(Sketcher.Constraint("Coincident", 17, 2, 14, 1))
sketch15.addConstraint(Sketcher.Constraint("Coincident", 18, 2, 19, 1))
sketch15.addConstraint(Sketcher.Constraint("Coincident", 19, 2, 20, 1))
sketch15.addConstraint(Sketcher.Constraint("Coincident", 20, 2, 21, 1))
sketch15.addConstraint(Sketcher.Constraint("Coincident", 21, 2, 22, 1))
sketch15.addConstraint(Sketcher.Constraint("Coincident", 22, 2, 23, 1))
sketch15.addConstraint(Sketcher.Constraint("Coincident", 23, 2, 18, 1))
sketch15.addConstraint(Sketcher.Constraint("Vertical", 0))
sketch15.addConstraint(Sketcher.Constraint("Horizontal", 1))
sketch15.addConstraint(Sketcher.Constraint("Vertical", 2))
sketch15.addConstraint(Sketcher.Constraint("Horizontal", 3))
sketch15.addConstraint(Sketcher.Constraint("Horizontal", 5))
sketch15.addConstraint(Sketcher.Constraint("Horizontal", 8))
sketch15.addConstraint(Sketcher.Constraint("Vertical", 10))
sketch15.addConstraint(Sketcher.Constraint("Horizontal", 11))
sketch15.addConstraint(Sketcher.Constraint("Vertical", 12))
sketch15.addConstraint(Sketcher.Constraint("Horizontal", 13))
sketch15.addConstraint(Sketcher.Constraint("Vertical", 14))
sketch15.addConstraint(Sketcher.Constraint("Horizontal", 15))
sketch15.addConstraint(Sketcher.Constraint("Vertical", 16))
sketch15.addConstraint(Sketcher.Constraint("Horizontal", 17))
sketch15.addConstraint(Sketcher.Constraint("Horizontal", 20))
sketch15.addConstraint(Sketcher.Constraint("Horizontal", 23))
sketch15.addConstraint(Sketcher.Constraint("Parallel", 9, 18))
sketch15.addConstraint(Sketcher.Constraint("Parallel", 4, 19))
sketch15.addConstraint(Sketcher.Constraint("Parallel", 6, 21))
sketch15.addConstraint(Sketcher.Constraint("Parallel", 7, 22))
sketch15.addConstraint(Sketcher.Constraint("Horizontal", 6, 2, 9, 2))
sketch15.addConstraint(Sketcher.Constraint("Horizontal", 1, 2, 10, 2))
sketch15.addConstraint(Sketcher.Constraint("Horizontal", 3, 2, 12, 2))
sketch15.addConstraint(Sketcher.Constraint("Horizontal", 11, 2, 14, 2))
sketch15.addConstraint(Sketcher.Constraint("Horizontal", 13, 2, 16, 2))
sketch15.addConstraint(Sketcher.Constraint("Horizontal", 9, 2, 18, 2))
sketch15.addConstraint(Sketcher.Constraint("Horizontal", 5, 2, 19, 2))
sketch15.addConstraint(Sketcher.Constraint("Horizontal", 18, 2, 21, 2))
sketch15.addConstraint(Sketcher.Constraint("Horizontal", 8, 2, 22, 2))
sketch15.addConstraint(Sketcher.Constraint("Equal", 3, 11))
sketch15.addConstraint(Sketcher.Constraint("Equal", 13, 15))
sketch15.addConstraint(Sketcher.Constraint("Equal", 5, 20))
sketch15.addConstraint(Sketcher.Constraint("Equal", 17, 0))
sketch15.addConstraint(Sketcher.Constraint("Equal", 4, 6))
sketch15.addConstraint(Sketcher.Constraint("Equal", 7, 9))
sketch15.addConstraint(Sketcher.Constraint("DistanceX", 1, 2, 1, 1, 10.0))
sketch15.addConstraint(Sketcher.Constraint("DistanceY", 0, 2, -1, 1, 13.0))
sketch15.addConstraint(Sketcher.Constraint("DistanceY", -1, 1, 4, 2, 20.0))
sketch15.addConstraint(Sketcher.Constraint("DistanceX", 10, 2, 1, 2, 52.0))
sketch15.addConstraint(Sketcher.Constraint("DistanceX", 4, 2, 2, 2, 140.5))
sketch15.addConstraint(Sketcher.Constraint("DistanceX", 14, 2, 4, 2, 11.5))
sketch15.addConstraint(Sketcher.Constraint("DistanceX", 13, 2, 19, 2, 11.5))
sketch15.addConstraint(Sketcher.Constraint("DistanceX", 5, 1, 5, 2, 27.874601))
sketch15.addConstraint(Sketcher.Constraint("DistanceY", -1, 1, 6, 2, 9.0964))
sketch15.addConstraint(Sketcher.Constraint("Distance", 7, 11.916878))
sketch15.addConstraint(Sketcher.Constraint("DistanceX", 8, 2, 8, 1, 8.747878))
sketch15.addConstraint(Sketcher.Constraint("DistanceX", -1, 1, 0, 2, 84.770921))
sketch15.addConstraint(Sketcher.Constraint("DistanceX", 9, 2, 6, 2, 22.997932))
sketch15.setExpression("Constraints[59]", "Params.sketch15_width")
pocket1 = body.newObject("PartDesign::Pocket", "Pocket")
pocket1.Profile = sketch15
pocket1.setExpression("Length", "Params.pocket1_length")
pocket1.Reversed = True

doc.recompute()
